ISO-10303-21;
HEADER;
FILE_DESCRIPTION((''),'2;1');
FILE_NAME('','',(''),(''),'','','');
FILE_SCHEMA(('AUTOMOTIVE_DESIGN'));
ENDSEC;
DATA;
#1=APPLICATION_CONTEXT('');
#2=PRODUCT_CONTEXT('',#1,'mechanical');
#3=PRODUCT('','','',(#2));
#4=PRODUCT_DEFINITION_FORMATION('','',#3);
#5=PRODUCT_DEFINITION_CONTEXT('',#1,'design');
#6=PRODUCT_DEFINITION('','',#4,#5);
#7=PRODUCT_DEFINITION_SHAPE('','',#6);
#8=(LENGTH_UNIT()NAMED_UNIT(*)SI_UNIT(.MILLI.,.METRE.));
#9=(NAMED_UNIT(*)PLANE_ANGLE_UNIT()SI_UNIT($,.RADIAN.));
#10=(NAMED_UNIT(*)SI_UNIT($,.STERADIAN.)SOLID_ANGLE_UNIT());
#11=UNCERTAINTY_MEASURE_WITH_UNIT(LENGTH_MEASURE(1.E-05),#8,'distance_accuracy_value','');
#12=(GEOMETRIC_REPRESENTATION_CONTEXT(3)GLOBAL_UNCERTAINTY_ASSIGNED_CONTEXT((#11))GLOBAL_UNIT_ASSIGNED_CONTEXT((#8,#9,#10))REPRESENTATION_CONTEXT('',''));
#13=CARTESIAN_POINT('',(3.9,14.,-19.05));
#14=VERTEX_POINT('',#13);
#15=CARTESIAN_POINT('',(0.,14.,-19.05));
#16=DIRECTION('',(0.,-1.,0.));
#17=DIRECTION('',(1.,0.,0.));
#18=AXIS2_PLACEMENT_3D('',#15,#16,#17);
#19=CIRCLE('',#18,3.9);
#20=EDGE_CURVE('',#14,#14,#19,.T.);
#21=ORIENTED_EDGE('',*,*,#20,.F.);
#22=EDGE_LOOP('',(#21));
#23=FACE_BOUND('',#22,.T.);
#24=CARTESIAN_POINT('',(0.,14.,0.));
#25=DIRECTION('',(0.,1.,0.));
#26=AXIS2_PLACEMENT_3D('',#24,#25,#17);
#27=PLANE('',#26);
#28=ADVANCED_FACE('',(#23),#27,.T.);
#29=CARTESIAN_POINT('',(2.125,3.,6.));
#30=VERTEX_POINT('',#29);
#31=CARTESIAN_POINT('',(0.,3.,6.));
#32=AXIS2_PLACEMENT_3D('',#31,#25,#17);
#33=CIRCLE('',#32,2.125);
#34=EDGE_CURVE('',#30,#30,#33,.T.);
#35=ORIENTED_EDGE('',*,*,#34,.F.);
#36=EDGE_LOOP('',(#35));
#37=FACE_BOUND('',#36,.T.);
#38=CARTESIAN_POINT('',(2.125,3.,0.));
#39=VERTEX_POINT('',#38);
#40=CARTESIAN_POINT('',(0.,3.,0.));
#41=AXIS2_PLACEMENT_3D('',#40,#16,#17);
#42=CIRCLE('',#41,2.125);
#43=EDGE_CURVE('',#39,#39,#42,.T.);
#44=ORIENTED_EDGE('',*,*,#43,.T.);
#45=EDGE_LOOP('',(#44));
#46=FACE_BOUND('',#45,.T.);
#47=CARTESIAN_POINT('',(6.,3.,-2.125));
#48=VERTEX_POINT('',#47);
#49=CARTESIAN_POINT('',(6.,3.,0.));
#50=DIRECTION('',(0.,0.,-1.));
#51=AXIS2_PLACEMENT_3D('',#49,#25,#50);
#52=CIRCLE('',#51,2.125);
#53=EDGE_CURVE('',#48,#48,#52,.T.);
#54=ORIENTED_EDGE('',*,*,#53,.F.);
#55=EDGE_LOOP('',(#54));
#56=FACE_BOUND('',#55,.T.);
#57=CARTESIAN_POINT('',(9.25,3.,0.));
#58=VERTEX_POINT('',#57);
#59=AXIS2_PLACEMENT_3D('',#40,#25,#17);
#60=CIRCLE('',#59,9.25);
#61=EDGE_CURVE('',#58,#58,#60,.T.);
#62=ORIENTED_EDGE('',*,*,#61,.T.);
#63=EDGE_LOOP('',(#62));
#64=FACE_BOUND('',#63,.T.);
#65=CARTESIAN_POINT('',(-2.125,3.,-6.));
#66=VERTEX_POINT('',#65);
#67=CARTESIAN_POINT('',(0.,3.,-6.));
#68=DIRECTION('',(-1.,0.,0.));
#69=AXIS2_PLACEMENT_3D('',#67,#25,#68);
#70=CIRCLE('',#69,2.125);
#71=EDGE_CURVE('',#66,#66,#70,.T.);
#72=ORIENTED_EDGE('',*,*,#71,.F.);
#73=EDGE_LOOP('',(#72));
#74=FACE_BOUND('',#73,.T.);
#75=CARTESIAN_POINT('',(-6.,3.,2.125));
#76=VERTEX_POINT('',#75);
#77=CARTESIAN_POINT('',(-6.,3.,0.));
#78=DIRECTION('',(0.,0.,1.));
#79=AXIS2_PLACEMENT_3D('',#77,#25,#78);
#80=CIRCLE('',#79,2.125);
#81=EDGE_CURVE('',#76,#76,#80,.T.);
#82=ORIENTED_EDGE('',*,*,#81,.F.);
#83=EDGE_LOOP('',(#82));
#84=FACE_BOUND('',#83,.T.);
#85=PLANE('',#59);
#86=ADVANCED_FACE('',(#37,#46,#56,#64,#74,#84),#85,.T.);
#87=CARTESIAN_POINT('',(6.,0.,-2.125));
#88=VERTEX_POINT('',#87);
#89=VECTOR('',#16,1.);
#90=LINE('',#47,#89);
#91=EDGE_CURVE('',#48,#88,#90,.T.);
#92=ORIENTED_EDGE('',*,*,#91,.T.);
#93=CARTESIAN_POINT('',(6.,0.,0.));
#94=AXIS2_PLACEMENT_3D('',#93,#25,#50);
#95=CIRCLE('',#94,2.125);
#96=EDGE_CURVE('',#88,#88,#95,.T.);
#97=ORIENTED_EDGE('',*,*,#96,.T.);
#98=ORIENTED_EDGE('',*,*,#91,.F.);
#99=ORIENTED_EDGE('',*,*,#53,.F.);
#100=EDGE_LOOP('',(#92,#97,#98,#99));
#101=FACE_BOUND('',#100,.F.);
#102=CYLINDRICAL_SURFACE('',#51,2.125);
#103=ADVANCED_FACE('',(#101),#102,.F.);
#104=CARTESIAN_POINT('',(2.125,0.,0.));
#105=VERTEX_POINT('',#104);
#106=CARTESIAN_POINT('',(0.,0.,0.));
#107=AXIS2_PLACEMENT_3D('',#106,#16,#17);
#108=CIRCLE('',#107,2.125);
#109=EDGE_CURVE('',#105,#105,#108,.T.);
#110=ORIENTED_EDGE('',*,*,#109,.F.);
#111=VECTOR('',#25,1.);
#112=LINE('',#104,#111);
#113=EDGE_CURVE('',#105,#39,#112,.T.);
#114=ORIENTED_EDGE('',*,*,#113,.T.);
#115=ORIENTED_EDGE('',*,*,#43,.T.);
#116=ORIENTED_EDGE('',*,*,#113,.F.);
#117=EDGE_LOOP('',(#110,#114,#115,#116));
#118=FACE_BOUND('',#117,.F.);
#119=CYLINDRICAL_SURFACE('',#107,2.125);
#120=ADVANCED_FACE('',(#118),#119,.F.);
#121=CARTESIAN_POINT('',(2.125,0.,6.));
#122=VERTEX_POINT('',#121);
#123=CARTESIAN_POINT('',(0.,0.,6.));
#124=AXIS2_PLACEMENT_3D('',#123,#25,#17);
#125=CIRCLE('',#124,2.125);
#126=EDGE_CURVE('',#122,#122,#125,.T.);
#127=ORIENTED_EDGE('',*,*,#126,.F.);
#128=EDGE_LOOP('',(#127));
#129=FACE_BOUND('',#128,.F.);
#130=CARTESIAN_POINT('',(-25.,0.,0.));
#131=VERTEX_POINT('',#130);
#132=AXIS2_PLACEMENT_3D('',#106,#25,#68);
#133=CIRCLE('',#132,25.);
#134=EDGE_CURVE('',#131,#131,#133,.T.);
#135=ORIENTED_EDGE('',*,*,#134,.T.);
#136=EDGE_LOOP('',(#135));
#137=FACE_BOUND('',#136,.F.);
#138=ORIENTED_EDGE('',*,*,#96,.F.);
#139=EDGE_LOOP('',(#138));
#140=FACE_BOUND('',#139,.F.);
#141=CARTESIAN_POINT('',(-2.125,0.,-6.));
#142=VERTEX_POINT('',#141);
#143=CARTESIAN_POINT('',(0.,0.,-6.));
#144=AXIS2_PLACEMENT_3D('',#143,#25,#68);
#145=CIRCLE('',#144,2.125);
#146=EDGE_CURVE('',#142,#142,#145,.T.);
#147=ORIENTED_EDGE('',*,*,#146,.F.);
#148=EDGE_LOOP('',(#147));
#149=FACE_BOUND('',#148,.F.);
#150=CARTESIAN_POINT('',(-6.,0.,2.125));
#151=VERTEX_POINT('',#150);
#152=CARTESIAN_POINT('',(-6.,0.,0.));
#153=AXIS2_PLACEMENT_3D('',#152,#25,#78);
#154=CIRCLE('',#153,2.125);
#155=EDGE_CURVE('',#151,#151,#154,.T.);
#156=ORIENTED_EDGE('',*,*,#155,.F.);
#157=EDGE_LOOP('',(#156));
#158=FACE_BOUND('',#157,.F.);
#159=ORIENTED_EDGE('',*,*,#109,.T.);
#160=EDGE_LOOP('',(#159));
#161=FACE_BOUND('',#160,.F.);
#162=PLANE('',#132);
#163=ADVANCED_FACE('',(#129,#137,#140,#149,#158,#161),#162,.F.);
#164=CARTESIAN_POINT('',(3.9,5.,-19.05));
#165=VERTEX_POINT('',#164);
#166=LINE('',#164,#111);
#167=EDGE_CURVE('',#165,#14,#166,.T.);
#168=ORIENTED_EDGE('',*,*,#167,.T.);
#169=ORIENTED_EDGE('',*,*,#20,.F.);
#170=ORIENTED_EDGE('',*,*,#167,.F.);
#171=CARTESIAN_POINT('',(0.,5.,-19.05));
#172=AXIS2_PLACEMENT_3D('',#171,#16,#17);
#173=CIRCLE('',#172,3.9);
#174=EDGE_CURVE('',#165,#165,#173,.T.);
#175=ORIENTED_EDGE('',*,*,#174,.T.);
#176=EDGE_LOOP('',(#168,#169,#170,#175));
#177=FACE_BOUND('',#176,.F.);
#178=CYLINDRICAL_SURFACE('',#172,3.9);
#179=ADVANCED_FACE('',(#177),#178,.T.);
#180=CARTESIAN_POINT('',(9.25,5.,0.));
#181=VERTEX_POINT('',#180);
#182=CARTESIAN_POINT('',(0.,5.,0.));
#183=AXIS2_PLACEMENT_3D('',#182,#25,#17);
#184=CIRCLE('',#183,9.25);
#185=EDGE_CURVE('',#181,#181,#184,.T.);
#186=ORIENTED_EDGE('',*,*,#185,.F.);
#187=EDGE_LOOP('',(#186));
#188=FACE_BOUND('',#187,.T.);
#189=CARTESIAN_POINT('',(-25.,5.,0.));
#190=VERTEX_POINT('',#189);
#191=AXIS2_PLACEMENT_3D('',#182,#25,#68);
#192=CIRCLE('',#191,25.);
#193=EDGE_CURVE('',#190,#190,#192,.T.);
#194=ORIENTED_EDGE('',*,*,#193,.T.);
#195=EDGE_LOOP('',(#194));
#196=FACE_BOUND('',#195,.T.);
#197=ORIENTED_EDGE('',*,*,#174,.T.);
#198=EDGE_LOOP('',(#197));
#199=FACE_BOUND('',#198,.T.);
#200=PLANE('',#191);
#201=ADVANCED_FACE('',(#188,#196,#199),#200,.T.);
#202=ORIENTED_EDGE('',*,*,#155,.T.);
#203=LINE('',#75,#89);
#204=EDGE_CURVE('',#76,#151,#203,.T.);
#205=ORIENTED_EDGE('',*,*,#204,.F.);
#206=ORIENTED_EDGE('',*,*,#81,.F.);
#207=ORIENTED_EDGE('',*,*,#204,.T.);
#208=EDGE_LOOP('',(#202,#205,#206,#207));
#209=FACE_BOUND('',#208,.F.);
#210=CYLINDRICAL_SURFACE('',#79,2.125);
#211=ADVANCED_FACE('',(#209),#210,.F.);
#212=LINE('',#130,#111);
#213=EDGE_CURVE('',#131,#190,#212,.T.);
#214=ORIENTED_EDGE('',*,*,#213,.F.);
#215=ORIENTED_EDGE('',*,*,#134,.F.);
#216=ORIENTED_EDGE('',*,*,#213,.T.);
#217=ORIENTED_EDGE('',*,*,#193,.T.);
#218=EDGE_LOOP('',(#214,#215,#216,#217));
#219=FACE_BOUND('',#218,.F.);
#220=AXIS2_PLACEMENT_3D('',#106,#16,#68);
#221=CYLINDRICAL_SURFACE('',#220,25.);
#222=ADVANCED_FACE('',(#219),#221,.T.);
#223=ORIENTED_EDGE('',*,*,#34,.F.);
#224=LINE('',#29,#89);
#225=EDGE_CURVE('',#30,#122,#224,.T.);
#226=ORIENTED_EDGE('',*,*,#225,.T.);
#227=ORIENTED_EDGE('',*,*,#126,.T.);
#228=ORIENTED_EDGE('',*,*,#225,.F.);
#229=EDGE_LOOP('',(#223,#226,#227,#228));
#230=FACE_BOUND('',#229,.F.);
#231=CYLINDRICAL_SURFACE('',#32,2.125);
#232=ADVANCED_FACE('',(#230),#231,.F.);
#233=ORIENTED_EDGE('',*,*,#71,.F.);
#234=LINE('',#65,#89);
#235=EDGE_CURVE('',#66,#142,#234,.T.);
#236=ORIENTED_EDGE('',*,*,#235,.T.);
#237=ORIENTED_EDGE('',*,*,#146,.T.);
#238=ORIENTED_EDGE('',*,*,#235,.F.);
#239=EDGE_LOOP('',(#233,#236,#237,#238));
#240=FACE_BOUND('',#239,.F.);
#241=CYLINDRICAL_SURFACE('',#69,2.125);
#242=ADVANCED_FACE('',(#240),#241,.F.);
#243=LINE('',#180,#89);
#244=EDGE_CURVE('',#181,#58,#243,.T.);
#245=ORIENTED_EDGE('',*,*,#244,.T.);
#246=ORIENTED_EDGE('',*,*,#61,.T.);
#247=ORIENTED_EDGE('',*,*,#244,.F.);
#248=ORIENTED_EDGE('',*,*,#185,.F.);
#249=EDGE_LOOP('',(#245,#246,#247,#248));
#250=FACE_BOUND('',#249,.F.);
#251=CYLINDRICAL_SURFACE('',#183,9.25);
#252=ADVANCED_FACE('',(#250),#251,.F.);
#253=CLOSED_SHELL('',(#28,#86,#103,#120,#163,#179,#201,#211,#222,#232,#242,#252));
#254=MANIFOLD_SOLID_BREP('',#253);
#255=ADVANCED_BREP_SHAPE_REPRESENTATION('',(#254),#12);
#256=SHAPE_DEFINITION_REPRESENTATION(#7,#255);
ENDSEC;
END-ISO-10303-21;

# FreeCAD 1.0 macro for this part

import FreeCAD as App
import Part
import Sketcher

V = App.Vector
Q = App.Units.Quantity

doc = App.newDocument("Part")
body = doc.addObject("PartDesign::Body", "Body")

sketch1 = body.newObject("Sketcher::SketchObject", "Sketch")
sketch1.AttachmentSupport = (doc.getObject("XZ_Plane"), [""])
sketch1.MapMode = "FlatFace"
sketch1.addGeometry(Part.Circle(V(0, 0, 0), V(0, 0, 1), 25), False)
sketch1.addConstraint([
    Sketcher.Constraint("Coincident", 0, 3, -1, 1),
    Sketcher.Constraint("Diameter", 0, Q("50 mm")),
])
pad1 = body.newObject("PartDesign::Pad", "Pad")
pad1.Profile = sketch1
pad1.Length = 5
pad1.Reversed = True

sketch2 = body.newObject("Sketcher::SketchObject", "Sketch001")
sketch2.AttachmentSupport = (doc.getObject("XZ_Plane"), [""])
sketch2.MapMode = "FlatFace"
sketch2.AttachmentOffset = App.Placement(V(0, 0, -5), App.Rotation())
sketch2.addGeometry(Part.Circle(V(0, -19.05, 0), V(0, 0, 1), 3.9), False)
sketch2.addConstraint([
    Sketcher.Constraint("PointOnObject", 0, 3, -2),
    Sketcher.Constraint("Diameter", 0, Q("7.8 mm")),
    Sketcher.Constraint("DistanceY", 0, 3, -1, 1, Q("19.05 mm")),
])
pad2 = body.newObject("PartDesign::Pad", "Pad001")
pad2.Profile = sketch2
pad2.Length = 9
pad2.Reversed = True

sketch3 = body.newObject("Sketcher::SketchObject", "Sketch002")
sketch3.AttachmentSupport = (doc.getObject("XZ_Plane"), [""])
sketch3.MapMode = "FlatFace"
sketch3.AttachmentOffset = App.Placement(V(0, 0, -5), App.Rotation())
sketch3.addGeometry(Part.Circle(V(0, 0, 0), V(0, 0, 1), 9.25), False)
sketch3.addConstraint([
    Sketcher.Constraint("Coincident", 0, 3, -1, 1),
    Sketcher.Constraint("Diameter", 0, Q("18.5 mm")),
])
pocket1 = body.newObject("PartDesign::Pocket", "Pocket")
pocket1.Profile = sketch3
pocket1.Length = 2
pocket1.Reversed = True

sketch4 = body.newObject("Sketcher::SketchObject", "Sketch003")
sketch4.AttachmentSupport = (doc.getObject("XZ_Plane"), [""])
sketch4.MapMode = "FlatFace"
sketch4.AttachmentOffset = App.Placement(V(0, 0, -3), App.Rotation())
sketch4.addGeometry(Part.Circle(V(0, 6, 0), V(0, 0, 1), 2.125), False)
sketch4.addConstraint([
    Sketcher.Constraint("PointOnObject", 0, 3, -2),
    Sketcher.Constraint("Diameter", 0, Q("4.25 mm")),
    Sketcher.Constraint("DistanceY", -1, 1, 0, 3, Q("6 mm")),
])
pocket2 = body.newObject("PartDesign::Pocket", "Pocket001")
pocket2.Profile = sketch4
pocket2.Type = "ThroughAll"
pocket2.Reversed = True
doc.recompute()

polarpattern = body.newObject("PartDesign::PolarPattern", "PolarPattern")
polarpattern.Originals = [pocket2]
polarpattern.Axis = (doc.getObject("Y_Axis"), [""])
polarpattern.Angle = 360
polarpattern.Occurrences = 4
body.Tip = polarpattern

sketch5 = body.newObject("Sketcher::SketchObject", "Sketch004")
sketch5.AttachmentSupport = (doc.getObject("XZ_Plane"), [""])
sketch5.MapMode = "FlatFace"
sketch5.addGeometry(Part.Circle(V(0, 0, 0), V(0, 0, 1), 2.125), False)
sketch5.addConstraint([
    Sketcher.Constraint("Coincident", 0, 3, -1, 1),
    Sketcher.Constraint("Diameter", 0, Q("4.25 mm")),
])
pocket3 = body.newObject("PartDesign::Pocket", "Pocket002")
pocket3.Profile = sketch5
pocket3.Type = "ThroughAll"

doc.recompute()
